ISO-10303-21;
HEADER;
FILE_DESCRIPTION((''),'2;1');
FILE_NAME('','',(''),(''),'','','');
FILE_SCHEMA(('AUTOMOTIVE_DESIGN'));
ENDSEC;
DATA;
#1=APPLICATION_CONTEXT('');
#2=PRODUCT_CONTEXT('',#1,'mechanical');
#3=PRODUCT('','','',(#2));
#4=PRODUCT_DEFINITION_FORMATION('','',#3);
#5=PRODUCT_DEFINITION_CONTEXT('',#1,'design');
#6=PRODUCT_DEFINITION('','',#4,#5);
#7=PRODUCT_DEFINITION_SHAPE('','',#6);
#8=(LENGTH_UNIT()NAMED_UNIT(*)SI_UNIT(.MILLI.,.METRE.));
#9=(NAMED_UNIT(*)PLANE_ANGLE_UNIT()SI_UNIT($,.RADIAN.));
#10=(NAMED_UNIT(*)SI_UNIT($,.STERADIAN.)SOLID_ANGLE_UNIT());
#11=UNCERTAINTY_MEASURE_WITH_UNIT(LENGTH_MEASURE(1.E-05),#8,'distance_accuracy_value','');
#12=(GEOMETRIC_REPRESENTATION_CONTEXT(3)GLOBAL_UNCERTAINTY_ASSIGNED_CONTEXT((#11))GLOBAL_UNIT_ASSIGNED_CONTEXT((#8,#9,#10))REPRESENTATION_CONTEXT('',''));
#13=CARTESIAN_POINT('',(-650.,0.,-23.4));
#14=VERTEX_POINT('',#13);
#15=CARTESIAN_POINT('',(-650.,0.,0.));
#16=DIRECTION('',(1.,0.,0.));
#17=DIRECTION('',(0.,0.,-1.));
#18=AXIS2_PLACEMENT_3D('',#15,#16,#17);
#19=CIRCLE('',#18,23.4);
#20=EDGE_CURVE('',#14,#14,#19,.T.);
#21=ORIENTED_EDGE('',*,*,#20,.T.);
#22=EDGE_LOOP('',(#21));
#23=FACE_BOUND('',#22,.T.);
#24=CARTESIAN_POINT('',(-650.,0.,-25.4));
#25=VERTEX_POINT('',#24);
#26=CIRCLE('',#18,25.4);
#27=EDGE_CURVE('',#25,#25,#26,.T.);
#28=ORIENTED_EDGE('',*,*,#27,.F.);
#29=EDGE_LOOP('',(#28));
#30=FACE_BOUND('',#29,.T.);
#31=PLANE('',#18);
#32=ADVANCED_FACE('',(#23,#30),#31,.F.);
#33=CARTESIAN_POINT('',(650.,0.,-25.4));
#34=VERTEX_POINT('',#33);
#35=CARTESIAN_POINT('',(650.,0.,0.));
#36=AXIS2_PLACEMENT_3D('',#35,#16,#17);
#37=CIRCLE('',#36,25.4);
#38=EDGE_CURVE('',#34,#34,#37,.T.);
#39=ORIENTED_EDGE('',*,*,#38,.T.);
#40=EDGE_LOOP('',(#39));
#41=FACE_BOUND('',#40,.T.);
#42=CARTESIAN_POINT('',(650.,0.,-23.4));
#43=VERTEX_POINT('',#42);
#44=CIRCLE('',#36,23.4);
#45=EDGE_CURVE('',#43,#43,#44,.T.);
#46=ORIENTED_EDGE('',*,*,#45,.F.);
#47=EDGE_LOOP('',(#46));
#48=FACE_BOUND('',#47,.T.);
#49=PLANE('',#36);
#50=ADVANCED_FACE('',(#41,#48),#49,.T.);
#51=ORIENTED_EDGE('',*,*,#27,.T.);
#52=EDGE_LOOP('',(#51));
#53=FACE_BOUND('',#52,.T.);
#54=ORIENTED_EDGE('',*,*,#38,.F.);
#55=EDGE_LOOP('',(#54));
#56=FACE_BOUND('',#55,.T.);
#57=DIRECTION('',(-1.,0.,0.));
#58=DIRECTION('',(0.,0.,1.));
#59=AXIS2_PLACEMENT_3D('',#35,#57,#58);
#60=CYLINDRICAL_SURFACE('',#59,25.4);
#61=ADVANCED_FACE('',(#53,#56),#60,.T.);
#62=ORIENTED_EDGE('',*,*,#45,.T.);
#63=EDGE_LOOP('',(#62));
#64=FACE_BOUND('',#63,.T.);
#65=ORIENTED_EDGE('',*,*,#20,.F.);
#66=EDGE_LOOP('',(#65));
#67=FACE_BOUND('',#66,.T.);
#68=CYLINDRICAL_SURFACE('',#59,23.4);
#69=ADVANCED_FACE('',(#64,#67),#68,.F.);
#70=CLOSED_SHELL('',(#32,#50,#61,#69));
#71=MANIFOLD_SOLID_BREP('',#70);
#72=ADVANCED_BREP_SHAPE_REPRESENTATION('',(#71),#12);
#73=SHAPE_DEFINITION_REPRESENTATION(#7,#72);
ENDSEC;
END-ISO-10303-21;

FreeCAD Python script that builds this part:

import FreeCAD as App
import Part
import Sketcher
from FreeCAD import Vector

doc = App.newDocument("Part")
body = doc.addObject("PartDesign::Body", "Body")

sketch1 = body.newObject("Sketcher::SketchObject", "Sketch")
sketch1.AttachmentSupport = (doc.getObject("YZ_Plane"), [""])
sketch1.MapMode = "FlatFace"
sketch1.addGeometry([
    Part.Circle(Vector(0, 0, 0), Vector(0, 0, 1), 25),
    Part.Circle(Vector(0, 0, 0), Vector(0, 0, 1), 23),
], False)
sketch1.addConstraint([
    Sketcher.Constraint("Coincident", 0, 3, -1, 1),
    Sketcher.Constraint("Coincident", 1, 3, -1, 1),
    Sketcher.Constraint("Diameter", 0, 50.8),
    Sketcher.Constraint("Diameter", 1, 46.8),
])
pad1 = body.newObject("PartDesign::Pad", "Pad")
pad1.Profile = sketch1
pad1.Length = 1300
pad1.Midplane = True

doc.recompute()
